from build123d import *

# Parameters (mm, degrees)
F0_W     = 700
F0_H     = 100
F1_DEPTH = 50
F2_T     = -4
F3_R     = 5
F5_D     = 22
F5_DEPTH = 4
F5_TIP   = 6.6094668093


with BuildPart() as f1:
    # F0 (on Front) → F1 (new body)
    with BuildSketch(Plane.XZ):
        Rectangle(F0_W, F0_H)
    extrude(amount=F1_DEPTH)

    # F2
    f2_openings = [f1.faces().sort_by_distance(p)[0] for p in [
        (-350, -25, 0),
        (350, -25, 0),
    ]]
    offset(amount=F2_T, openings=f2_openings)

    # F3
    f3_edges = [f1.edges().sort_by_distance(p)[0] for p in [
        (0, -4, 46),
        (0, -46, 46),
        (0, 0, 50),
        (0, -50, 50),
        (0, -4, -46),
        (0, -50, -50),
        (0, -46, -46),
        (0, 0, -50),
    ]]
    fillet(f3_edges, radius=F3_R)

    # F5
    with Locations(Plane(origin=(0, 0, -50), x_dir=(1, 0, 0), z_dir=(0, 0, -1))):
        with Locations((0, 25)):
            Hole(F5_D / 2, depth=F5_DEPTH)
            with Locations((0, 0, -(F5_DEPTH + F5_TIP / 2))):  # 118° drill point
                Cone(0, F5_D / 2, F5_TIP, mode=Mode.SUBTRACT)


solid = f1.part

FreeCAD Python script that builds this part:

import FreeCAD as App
import Part
import Sketcher

V = App.Vector
Q = App.Units.Quantity


def edges_at(feature, points):
    """Names of the edges that pass closest to the given points."""
    edges = feature.Shape.Edges
    near = lambda p: min(range(len(edges)), key=lambda i: edges[i].distToShape(Part.Vertex(*p))[0])
    return sorted({f"Edge{near(p) + 1}" for p in points})


def faces_at(feature, points):
    """Names of the faces that lie closest to the given points."""
    faces = feature.Shape.Faces
    near = lambda p: min(range(len(faces)), key=lambda i: faces[i].distToShape(Part.Vertex(*p))[0])
    return sorted({f"Face{near(p) + 1}" for p in points})

doc = App.newDocument("Part")
params = doc.addObject("Spreadsheet::Sheet", "Params")
for row, (alias, value) in enumerate([
    ("sketch1_width", "700 mm"),
    ("sketch1_height", "100 mm"),
    ("pad1_length", "50 mm"),
    ("thickness_wall", "4 mm"),
    ("fillet_radius", "5 mm"),
    ("sketch2_diameter", "22 mm"),
    ("hole_diameter", "22 mm"),
    ("hole_depth", "4 mm"),
], start=1):
    params.set(f"A{row}", alias)
    params.set(f"B{row}", "=" + value)
    params.setAlias(f"B{row}", alias)

body = doc.addObject("PartDesign::Body", "Body")

sketch1 = doc.addObject("Sketcher::SketchObject", "Sketch")
body.addObject(sketch1)
sketch1.AttachmentSupport = (doc.XZ_Plane, [""])
sketch1.MapMode = "FlatFace"
sketch1.addGeometry([
    Part.LineSegment(V(-350, 50, 0), V(-350, -50, 0)),
    Part.LineSegment(V(-350, -50, 0), V(350, -50, 0)),
    Part.LineSegment(V(350, -50, 0), V(350, 50, 0)),
    Part.LineSegment(V(350, 50, 0), V(-350, 50, 0)),
], False)
sketch1.addConstraint([
    Sketcher.Constraint("Coincident", 0, 2, 1, 1),
    Sketcher.Constraint("Coincident", 1, 2, 2, 1),
    Sketcher.Constraint("Coincident", 2, 2, 3, 1),
    Sketcher.Constraint("Coincident", 3, 2, 0, 1),
    Sketcher.Constraint("Vertical", 0),
    Sketcher.Constraint("Horizontal", 1),
    Sketcher.Constraint("Vertical", 2),
    Sketcher.Constraint("Horizontal", 3),
    Sketcher.Constraint("Symmetric", 0, 2, 2, 2, -1, 1),
    Sketcher.Constraint("DistanceX", 1, 1, 1, 2, Q("700 mm")),
    Sketcher.Constraint("DistanceY", 0, 2, 0, 1, Q("100 mm")),
])
sketch1.setExpression("Constraints[9]", "Params.sketch1_width")
sketch1.setExpression("Constraints[10]", "Params.sketch1_height")
pad1 = doc.addObject("PartDesign::Pad", "Pad")
body.addObject(pad1)
pad1.Profile = sketch1
pad1.setExpression("Length", "Params.pad1_length")
doc.recompute()

thickness = doc.addObject("PartDesign::Thickness", "Thickness")
body.addObject(thickness)
thickness.Base = (pad1, faces_at(pad1, [(-350, -25, 0), (350, -25, 0)]))
thickness.setExpression("Value", "Params.thickness_wall")
thickness.Reversed = True
thickness.Join = "Arc"
doc.recompute()

fillet = doc.addObject("PartDesign::Fillet", "Fillet")
body.addObject(fillet)
fillet.Base = (thickness, edges_at(thickness, [
    (0, -4, 46),
    (0, -46, 46),
    (0, 0, 50),
    (0, -50, 50),
    (0, -4, -46),
    (0, -50, -50),
    (0, -46, -46),
    (0, 0, -50),
]))
fillet.setExpression("Radius", "Params.fillet_radius")

sketch2 = doc.addObject("Sketcher::SketchObject", "Sketch001")
body.addObject(sketch2)
sketch2.AttachmentSupport = (doc.XY_Plane, [""])
sketch2.MapMode = "FlatFace"
sketch2.AttachmentOffset = App.Placement(V(0, 0, -50), App.Rotation())
sketch2.addGeometry(Part.Circle(V(0, -25, 0), V(0, 0, 1), 11), False)
sketch2.addConstraint([
    Sketcher.Constraint("PointOnObject", 0, 3, -2),
    Sketcher.Constraint("Diameter", 0, Q("22 mm")),
    Sketcher.Constraint("DistanceY", 0, 3, -1, 1, Q("25 mm")),
])
sketch2.setExpression("Constraints[1]", "Params.sketch2_diameter")
doc.recompute()
hole = doc.addObject("PartDesign::Hole", "Hole")
body.addObject(hole)
hole.Profile = sketch2
hole.ThreadType = "None"
hole.setExpression("Diameter", "Params.hole_diameter")
hole.DepthType = "Dimension"
hole.setExpression("Depth", "Params.hole_depth")
hole.DrillPoint = "Angled"
hole.DrillPointAngle = 118
hole.Reversed = True

doc.recompute()
